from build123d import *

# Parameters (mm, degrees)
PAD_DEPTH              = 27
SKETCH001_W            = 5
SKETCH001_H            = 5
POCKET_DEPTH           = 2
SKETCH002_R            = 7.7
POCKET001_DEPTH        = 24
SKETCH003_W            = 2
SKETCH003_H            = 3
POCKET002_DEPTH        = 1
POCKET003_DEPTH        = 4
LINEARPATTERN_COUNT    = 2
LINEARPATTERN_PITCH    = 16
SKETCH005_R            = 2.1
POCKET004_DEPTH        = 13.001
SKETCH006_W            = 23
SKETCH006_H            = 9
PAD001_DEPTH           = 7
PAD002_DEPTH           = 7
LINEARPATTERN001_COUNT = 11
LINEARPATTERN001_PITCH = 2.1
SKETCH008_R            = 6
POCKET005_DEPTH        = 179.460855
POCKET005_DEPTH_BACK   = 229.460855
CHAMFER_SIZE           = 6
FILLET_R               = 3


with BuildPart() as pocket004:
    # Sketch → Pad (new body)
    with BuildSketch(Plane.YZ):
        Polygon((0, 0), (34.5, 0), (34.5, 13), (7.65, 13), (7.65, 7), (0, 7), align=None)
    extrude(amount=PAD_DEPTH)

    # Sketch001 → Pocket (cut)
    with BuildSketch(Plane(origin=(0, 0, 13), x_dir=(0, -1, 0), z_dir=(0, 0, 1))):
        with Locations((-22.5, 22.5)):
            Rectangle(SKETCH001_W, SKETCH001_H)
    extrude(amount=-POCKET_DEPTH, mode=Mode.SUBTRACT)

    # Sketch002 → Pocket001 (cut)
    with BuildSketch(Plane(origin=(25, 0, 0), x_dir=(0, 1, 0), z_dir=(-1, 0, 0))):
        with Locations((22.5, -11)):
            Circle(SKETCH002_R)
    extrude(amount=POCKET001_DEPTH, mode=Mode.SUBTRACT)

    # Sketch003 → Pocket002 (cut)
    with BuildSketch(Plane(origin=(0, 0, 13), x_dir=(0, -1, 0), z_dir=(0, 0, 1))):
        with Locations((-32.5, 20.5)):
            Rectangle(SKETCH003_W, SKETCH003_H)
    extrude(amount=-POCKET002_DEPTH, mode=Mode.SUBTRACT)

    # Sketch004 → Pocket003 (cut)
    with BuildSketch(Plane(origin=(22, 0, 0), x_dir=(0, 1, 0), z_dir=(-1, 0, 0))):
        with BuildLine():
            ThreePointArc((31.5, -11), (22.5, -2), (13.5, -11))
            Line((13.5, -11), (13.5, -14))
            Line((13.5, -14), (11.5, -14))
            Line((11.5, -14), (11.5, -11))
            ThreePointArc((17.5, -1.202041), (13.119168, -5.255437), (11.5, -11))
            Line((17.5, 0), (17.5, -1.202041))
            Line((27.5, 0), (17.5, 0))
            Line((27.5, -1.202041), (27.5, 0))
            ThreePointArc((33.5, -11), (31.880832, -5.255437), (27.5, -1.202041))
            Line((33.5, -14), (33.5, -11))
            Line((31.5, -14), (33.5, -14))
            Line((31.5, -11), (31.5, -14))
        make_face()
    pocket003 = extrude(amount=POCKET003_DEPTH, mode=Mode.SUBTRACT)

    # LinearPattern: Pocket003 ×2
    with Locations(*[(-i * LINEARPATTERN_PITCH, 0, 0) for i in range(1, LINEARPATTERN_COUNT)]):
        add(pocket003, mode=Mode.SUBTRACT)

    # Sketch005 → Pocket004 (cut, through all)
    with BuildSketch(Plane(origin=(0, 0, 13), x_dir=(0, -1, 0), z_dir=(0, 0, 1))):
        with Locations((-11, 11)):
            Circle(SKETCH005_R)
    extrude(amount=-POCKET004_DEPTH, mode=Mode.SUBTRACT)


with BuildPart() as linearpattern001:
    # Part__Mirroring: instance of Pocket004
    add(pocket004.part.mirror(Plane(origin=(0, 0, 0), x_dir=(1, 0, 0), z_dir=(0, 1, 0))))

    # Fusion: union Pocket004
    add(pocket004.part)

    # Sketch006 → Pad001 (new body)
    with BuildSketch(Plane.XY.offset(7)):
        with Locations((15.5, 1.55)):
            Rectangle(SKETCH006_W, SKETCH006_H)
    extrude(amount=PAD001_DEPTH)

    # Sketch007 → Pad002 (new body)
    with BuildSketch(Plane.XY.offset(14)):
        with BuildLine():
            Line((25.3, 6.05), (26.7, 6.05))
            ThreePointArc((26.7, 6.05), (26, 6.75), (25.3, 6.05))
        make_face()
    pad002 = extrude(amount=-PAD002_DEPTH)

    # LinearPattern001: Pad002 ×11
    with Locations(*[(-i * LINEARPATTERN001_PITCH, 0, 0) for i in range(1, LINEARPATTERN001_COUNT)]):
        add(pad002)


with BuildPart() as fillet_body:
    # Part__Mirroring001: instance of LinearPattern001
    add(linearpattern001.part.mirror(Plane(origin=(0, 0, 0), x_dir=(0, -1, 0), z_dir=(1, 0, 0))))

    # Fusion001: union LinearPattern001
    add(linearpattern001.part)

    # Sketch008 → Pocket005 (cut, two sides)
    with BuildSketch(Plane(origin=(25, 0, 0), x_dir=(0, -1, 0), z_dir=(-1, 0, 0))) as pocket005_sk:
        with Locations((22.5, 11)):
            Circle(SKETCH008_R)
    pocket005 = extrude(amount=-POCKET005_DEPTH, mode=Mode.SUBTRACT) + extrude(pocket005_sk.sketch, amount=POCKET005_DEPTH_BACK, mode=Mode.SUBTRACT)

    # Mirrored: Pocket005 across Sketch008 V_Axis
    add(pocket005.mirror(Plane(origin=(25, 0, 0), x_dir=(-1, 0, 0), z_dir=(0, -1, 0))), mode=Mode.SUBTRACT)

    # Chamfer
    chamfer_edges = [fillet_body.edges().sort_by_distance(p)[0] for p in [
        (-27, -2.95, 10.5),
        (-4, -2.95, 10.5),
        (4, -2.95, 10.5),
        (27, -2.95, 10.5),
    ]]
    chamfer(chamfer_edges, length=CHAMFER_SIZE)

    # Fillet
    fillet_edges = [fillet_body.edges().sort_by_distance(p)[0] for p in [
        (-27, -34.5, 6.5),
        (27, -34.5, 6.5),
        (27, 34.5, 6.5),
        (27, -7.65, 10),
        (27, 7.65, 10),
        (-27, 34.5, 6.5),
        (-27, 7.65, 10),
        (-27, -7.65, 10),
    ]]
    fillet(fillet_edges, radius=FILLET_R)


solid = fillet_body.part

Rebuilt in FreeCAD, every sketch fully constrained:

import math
import FreeCAD as App
import Part
import Sketcher
from FreeCAD import Vector
Q = App.Units.Quantity


def edges_at(feature, points):
    """Names of the edges that pass closest to the given points."""
    edges = feature.Shape.Edges
    near = lambda p: min(range(len(edges)), key=lambda i: edges[i].distToShape(Part.Vertex(*p))[0])
    return sorted({f"Edge{near(p) + 1}" for p in points})

doc = App.newDocument("Part")
params = doc.addObject("Spreadsheet::Sheet", "Params")
for row, (alias, value) in enumerate([
    ("sketch1_height", "13 mm"),
    ("sketch1_height2", "6 mm"),
    ("sketch1_width", "34.5 mm"),
    ("sketch1_width2", "26.85 mm"),
    ("pad1_length", "27 mm"),
    ("sketch2_width", "5 mm"),
    ("pocket1_length", "2 mm"),
    ("sketch3_diameter", "15.4 mm"),
    ("pocket2_length", "24 mm"),
    ("sketch4_width", "3 mm"),
    ("sketch4_height", "2 mm"),
    ("pocket3_length", "1 mm"),
    ("sketch5_radius", "9 mm"),
    ("sketch5_width", "2 mm"),
    ("sketch5_width2", "10 mm"),
    ("sketch5_height", "3 mm"),
    ("pocket4_length", "4 mm"),
    ("linearpattern_pitch", "16 mm"),
    ("sketch6_diameter", "4.2 mm"),
    ("sketch7_width", "23 mm"),
    ("sketch7_height", "9 mm"),
    ("pad2_length", "7 mm"),
    ("sketch8_radius", "0.7 mm"),
    ("pad3_length", "7 mm"),
    ("linearpattern2_pitch", "2.1 mm"),
    ("sketch9_diameter", "12 mm"),
    ("chamfer_size", "6 mm"),
    ("fillet_radius", "3 mm"),
], start=1):
    params.set(f"A{row}", alias)
    params.set(f"B{row}", "=" + value)
    params.setAlias(f"B{row}", alias)

body = doc.addObject("PartDesign::Body", "Body")

# Sketch on YZ plane
sketch1 = doc.addObject("Sketcher::SketchObject", "Sketch")
body.addObject(sketch1)
sketch1.AttachmentSupport = (doc.YZ_Plane, [""])
sketch1.MapMode = "FlatFace"
sketch1.addGeometry([
    Part.LineSegment(Vector(0, 0, 0), Vector(34.5, 0, 0)),  # 0
    Part.LineSegment(Vector(34.5, 0, 0), Vector(34.5, 13, 0)),  # 1
    Part.LineSegment(Vector(34.5, 13, 0), Vector(7.65, 13, 0)),  # 2
    Part.LineSegment(Vector(7.65, 13, 0), Vector(7.65, 7, 0)),  # 3
    Part.LineSegment(Vector(7.65, 7, 0), Vector(0, 7, 0)),  # 4
    Part.LineSegment(Vector(0, 7, 0), Vector(0, 0, 0)),  # 5
], False)
sketch1.addConstraint([
    Sketcher.Constraint("Coincident", 0, 2, 1, 1),
    Sketcher.Constraint("Coincident", 1, 2, 2, 1),
    Sketcher.Constraint("Coincident", 2, 2, 3, 1),
    Sketcher.Constraint("Coincident", 3, 2, 4, 1),
    Sketcher.Constraint("Coincident", 4, 2, 5, 1),
    Sketcher.Constraint("Coincident", 5, 2, 0, 1),
    Sketcher.Constraint("Horizontal", 0),
    Sketcher.Constraint("Vertical", 1),
    Sketcher.Constraint("Horizontal", 2),
    Sketcher.Constraint("Vertical", 3),
    Sketcher.Constraint("Horizontal", 4),
    Sketcher.Constraint("Vertical", 5),
    Sketcher.Constraint("Coincident", 5, 2, -1, 1),
    Sketcher.Constraint("DistanceY", 1, 1, 1, 2, Q("13 mm")),
    Sketcher.Constraint("DistanceY", 3, 2, 3, 1, Q("6 mm")),
    Sketcher.Constraint("DistanceX", 0, 1, 0, 2, Q("34.5 mm")),
    Sketcher.Constraint("DistanceX", 2, 2, 2, 1, Q("26.85 mm")),
])
sketch1.setExpression("Constraints[13]", "Params.sketch1_height")
sketch1.setExpression("Constraints[14]", "Params.sketch1_height2")
sketch1.setExpression("Constraints[15]", "Params.sketch1_width")
sketch1.setExpression("Constraints[16]", "Params.sketch1_width2")
pad1 = doc.addObject("PartDesign::Pad", "Pad")
body.addObject(pad1)
pad1.Profile = sketch1
pad1.setExpression("Length", "Params.pad1_length")

# Sketch on XY plane
sketch2 = doc.addObject("Sketcher::SketchObject", "Sketch001")
body.addObject(sketch2)
sketch2.AttachmentSupport = (doc.XY_Plane, [""])
sketch2.MapMode = "FlatFace"
sketch2.AttachmentOffset = App.Placement(Vector(0, 0, 13), App.Rotation())
sketch2.addGeometry([
    Part.LineSegment(Vector(25, 25, 0), Vector(20, 25, 0)),
    Part.LineSegment(Vector(20, 25, 0), Vector(20, 20, 0)),
    Part.LineSegment(Vector(20, 20, 0), Vector(25, 20, 0)),
    Part.LineSegment(Vector(25, 20, 0), Vector(25, 25, 0)),
], False)
sketch2.addConstraint([
    Sketcher.Constraint("Coincident", 0, 2, 1, 1),
    Sketcher.Constraint("Coincident", 1, 2, 2, 1),
    Sketcher.Constraint("Coincident", 2, 2, 3, 1),
    Sketcher.Constraint("Coincident", 3, 2, 0, 1),
    Sketcher.Constraint("Horizontal", 0),
    Sketcher.Constraint("Vertical", 1),
    Sketcher.Constraint("Horizontal", 2),
    Sketcher.Constraint("Vertical", 3),
    Sketcher.Constraint("Equal", 2, 1),
    Sketcher.Constraint("DistanceX", 0, 2, 0, 1, Q("5 mm")),
    Sketcher.Constraint("DistanceX", -1, 1, 0, 2, Q("20 mm")),
    Sketcher.Constraint("DistanceY", -1, 1, 0, 2, Q("25 mm")),
])
sketch2.setExpression("Constraints[9]", "Params.sketch2_width")
pocket1 = doc.addObject("PartDesign::Pocket", "Pocket")
body.addObject(pocket1)
pocket1.Profile = sketch2
pocket1.setExpression("Length", "Params.pocket1_length")

# Sketch on YZ plane
sketch3 = doc.addObject("Sketcher::SketchObject", "Sketch002")
body.addObject(sketch3)
sketch3.AttachmentSupport = (doc.YZ_Plane, [""])
sketch3.MapMode = "FlatFace"
sketch3.AttachmentOffset = App.Placement(Vector(0, 0, 25), App.Rotation())
sketch3.addGeometry(Part.Circle(Vector(22.5, 11, 0), Vector(0, 0, 1), 7.7), False)
sketch3.addConstraint([
    Sketcher.Constraint("Diameter", 0, Q("15.4 mm")),
    Sketcher.Constraint("DistanceY", -1, 1, 0, 3, Q("11 mm")),
    Sketcher.Constraint("DistanceX", -1, 1, 0, 3, Q("22.5 mm")),
])
sketch3.setExpression("Constraints[0]", "Params.sketch3_diameter")
pocket2 = doc.addObject("PartDesign::Pocket", "Pocket001")
body.addObject(pocket2)
pocket2.Profile = sketch3
pocket2.setExpression("Length", "Params.pocket2_length")

# Sketch on XY plane
sketch4 = doc.addObject("Sketcher::SketchObject", "Sketch003")
body.addObject(sketch4)
sketch4.AttachmentSupport = (doc.XY_Plane, [""])
sketch4.MapMode = "FlatFace"
sketch4.AttachmentOffset = App.Placement(Vector(0, 0, 13), App.Rotation())
sketch4.addGeometry([
    Part.LineSegment(Vector(22, 33.5, 0), Vector(19, 33.5, 0)),
    Part.LineSegment(Vector(19, 33.5, 0), Vector(19, 31.5, 0)),
    Part.LineSegment(Vector(19, 31.5, 0), Vector(22, 31.5, 0)),
    Part.LineSegment(Vector(22, 31.5, 0), Vector(22, 33.5, 0)),
], False)
sketch4.addConstraint([
    Sketcher.Constraint("Coincident", 0, 2, 1, 1),
    Sketcher.Constraint("Coincident", 1, 2, 2, 1),
    Sketcher.Constraint("Coincident", 2, 2, 3, 1),
    Sketcher.Constraint("Coincident", 3, 2, 0, 1),
    Sketcher.Constraint("Horizontal", 0),
    Sketcher.Constraint("Vertical", 1),
    Sketcher.Constraint("Horizontal", 2),
    Sketcher.Constraint("Vertical", 3),
    Sketcher.Constraint("DistanceX", 0, 2, 0, 1, Q("3 mm")),
    Sketcher.Constraint("DistanceY", 1, 2, 1, 1, Q("2 mm")),
    Sketcher.Constraint("DistanceX", -1, 1, 0, 2, Q("19 mm")),
    Sketcher.Constraint("DistanceY", -1, 1, 0, 2, Q("33.5 mm")),
])
sketch4.setExpression("Constraints[8]", "Params.sketch4_width")
sketch4.setExpression("Constraints[9]", "Params.sketch4_height")
pocket3 = doc.addObject("PartDesign::Pocket", "Pocket002")
body.addObject(pocket3)
pocket3.Profile = sketch4
pocket3.setExpression("Length", "Params.pocket3_length")

# Sketch on YZ plane
sketch5 = doc.addObject("Sketcher::SketchObject", "Sketch004")
body.addObject(sketch5)
sketch5.AttachmentSupport = (doc.YZ_Plane, [""])
sketch5.MapMode = "FlatFace"
sketch5.AttachmentOffset = App.Placement(Vector(0, 0, 22), App.Rotation())
sketch5.addGeometry([
    Part.ArcOfCircle(Part.Circle(Vector(22.5, 11, 0), Vector(0, 0, 1), 9), math.radians(180), math.radians(360)),  # 0
    Part.LineSegment(Vector(31.5, 11, 0), Vector(31.5, 14, 0)),  # 1
    Part.LineSegment(Vector(31.5, 14, 0), Vector(33.5, 14, 0)),  # 2
    Part.LineSegment(Vector(33.5, 14, 0), Vector(33.5, 11, 0)),  # 3
    Part.ArcOfCircle(Part.Circle(Vector(22.500003, 10.999998, 0), Vector(0, 0, 1), 10.999997), math.radians(-62.964319), math.radians(0.000011)),  # 4
    Part.LineSegment(Vector(27.5, 1.202041, 0), Vector(27.5, 0, 0)),  # 5
    Part.LineSegment(Vector(27.5, 0, 0), Vector(17.5, 0, 0)),  # 6
    Part.LineSegment(Vector(17.5, 0, 0), Vector(17.5, 1.202041, 0)),  # 7
    Part.ArcOfCircle(Part.Circle(Vector(22.499997, 10.999998, 0), Vector(0, 0, 1), 10.999997), math.radians(179.999989), math.radians(242.964319)),  # 8
    Part.LineSegment(Vector(11.5, 11, 0), Vector(11.5, 14, 0)),  # 9
    Part.LineSegment(Vector(11.5, 14, 0), Vector(13.5, 14, 0)),  # 10
    Part.LineSegment(Vector(13.5, 14, 0), Vector(13.5, 11, 0)),  # 11
], False)
sketch5.addConstraint([
    Sketcher.Constraint("Tangent", 0, 2, 1, 1),
    Sketcher.Constraint("Coincident", 1, 2, 2, 1),
    Sketcher.Constraint("Coincident", 2, 2, 3, 1),
    Sketcher.Constraint("Tangent", 3, 2, 4, 2),
    Sketcher.Constraint("Coincident", 4, 1, 5, 1),
    Sketcher.Constraint("Coincident", 5, 2, 6, 1),
    Sketcher.Constraint("Coincident", 6, 2, 7, 1),
    Sketcher.Constraint("Coincident", 7, 2, 8, 2),
    Sketcher.Constraint("Tangent", 8, 1, 9, 1),
    Sketcher.Constraint("Coincident", 9, 2, 10, 1),
    Sketcher.Constraint("Coincident", 10, 2, 11, 1),
    Sketcher.Constraint("Tangent", 11, 2, 0, 1),
    Sketcher.Constraint("Vertical", 1),
    Sketcher.Constraint("Horizontal", 2),
    Sketcher.Constraint("Vertical", 3),
    Sketcher.Constraint("Vertical", 5),
    Sketcher.Constraint("Horizontal", 6),
    Sketcher.Constraint("Vertical", 7),
    Sketcher.Constraint("Vertical", 9),
    Sketcher.Constraint("Horizontal", 10),
    Sketcher.Constraint("Vertical", 11),
    Sketcher.Constraint("Coincident", 4, 3, 0, 3),
    Sketcher.Constraint("Coincident", 8, 3, 0, 3),
    Sketcher.Constraint("Equal", 4, 8),
    Sketcher.Constraint("PointOnObject", 5, 2, -1),
    Sketcher.Constraint("Horizontal", 4, 1, 7, 2),
    Sketcher.Constraint("Horizontal", 2, 2, 9, 2),
    Sketcher.Constraint("Radius", 0, Q("9 mm")),
    Sketcher.Constraint("DistanceX", 2, 1, 2, 2, Q("2 mm")),
    Sketcher.Constraint("DistanceX", 6, 2, 6, 1, Q("10 mm")),
    Sketcher.Constraint("DistanceY", 1, 1, 1, 2, Q("3 mm")),
    Sketcher.Constraint("DistanceY", -1, 1, 0, 3, Q("11 mm")),
    Sketcher.Constraint("DistanceX", -1, 1, 0, 3, Q("22.5 mm")),
])
sketch5.setExpression("Constraints[27]", "Params.sketch5_radius")
sketch5.setExpression("Constraints[28]", "Params.sketch5_width")
sketch5.setExpression("Constraints[29]", "Params.sketch5_width2")
sketch5.setExpression("Constraints[30]", "Params.sketch5_height")
pocket4 = doc.addObject("PartDesign::Pocket", "Pocket003")
body.addObject(pocket4)
pocket4.Profile = sketch5
pocket4.setExpression("Length", "Params.pocket4_length")
doc.recompute()

linearpattern = doc.addObject("PartDesign::LinearPattern", "LinearPattern")
body.addObject(linearpattern)
linearpattern.Originals = [pocket4]
linearpattern.Direction = (doc.X_Axis, [""])
linearpattern.Mode = "offset"
linearpattern.setExpression("Offset", "Params.linearpattern_pitch")
linearpattern.Occurrences = 2
linearpattern.Reversed = True
body.Tip = linearpattern

# Sketch on XY plane
sketch6 = doc.addObject("Sketcher::SketchObject", "Sketch005")
body.addObject(sketch6)
sketch6.AttachmentSupport = (doc.XY_Plane, [""])
sketch6.MapMode = "FlatFace"
sketch6.AttachmentOffset = App.Placement(Vector(0, 0, 13), App.Rotation())
sketch6.addGeometry(Part.Circle(Vector(11, 11, 0), Vector(0, 0, 1), 2.1), False)
sketch6.addConstraint([
    Sketcher.Constraint("Diameter", 0, Q("4.2 mm")),
    Sketcher.Constraint("DistanceX", -1, 1, 0, 3, Q("11 mm")),
    Sketcher.Constraint("DistanceY", -1, 1, 0, 3, Q("11 mm")),
])
sketch6.setExpression("Constraints[0]", "Params.sketch6_diameter")
pocket5 = doc.addObject("PartDesign::Pocket", "Pocket004")
body.addObject(pocket5)
pocket5.Profile = sketch6
pocket5.Type = "ThroughAll"
body2 = doc.addObject("PartDesign::Body", "Body001")
doc.recompute()

mirroring = doc.addObject("Part::Mirroring", "Mirroring")
mirroring.Source = body
mirroring.Base = Vector(0, 0, 0)
mirroring.Normal = Vector(0, 1, 0)
body2.BaseFeature = mirroring
doc.recompute()

boolean = doc.addObject("PartDesign::Boolean", "Boolean")
body2.addObject(boolean)
boolean.Type = "Fuse"
boolean.addObjects([body])

# Sketch on XY plane
sketch7 = doc.addObject("Sketcher::SketchObject", "Sketch006")
body2.addObject(sketch7)
sketch7.AttachmentSupport = (doc.getObject("XY_Plane001"), [""])
sketch7.MapMode = "FlatFace"
sketch7.AttachmentOffset = App.Placement(Vector(0, 0, 7), App.Rotation())
sketch7.addGeometry([
    Part.LineSegment(Vector(4, 6.05, 0), Vector(4, -2.95, 0)),
    Part.LineSegment(Vector(4, -2.95, 0), Vector(27, -2.95, 0)),
    Part.LineSegment(Vector(27, -2.95, 0), Vector(27, 6.05, 0)),
    Part.LineSegment(Vector(27, 6.05, 0), Vector(4, 6.05, 0)),
], False)
sketch7.addConstraint([
    Sketcher.Constraint("Coincident", 0, 2, 1, 1),
    Sketcher.Constraint("Coincident", 1, 2, 2, 1),
    Sketcher.Constraint("Coincident", 2, 2, 3, 1),
    Sketcher.Constraint("Coincident", 3, 2, 0, 1),
    Sketcher.Constraint("Vertical", 0),
    Sketcher.Constraint("Horizontal", 1),
    Sketcher.Constraint("Vertical", 2),
    Sketcher.Constraint("Horizontal", 3),
    Sketcher.Constraint("DistanceX", 1, 1, 1, 2, Q("23 mm")),
    Sketcher.Constraint("DistanceY", 0, 2, 0, 1, Q("9 mm")),
    Sketcher.Constraint("DistanceX", -1, 1, 0, 2, Q("4 mm")),
    Sketcher.Constraint("DistanceY", 0, 2, -1, 1, Q("2.95 mm")),
])
sketch7.setExpression("Constraints[8]", "Params.sketch7_width")
sketch7.setExpression("Constraints[9]", "Params.sketch7_height")
pad2 = doc.addObject("PartDesign::Pad", "Pad001")
body2.addObject(pad2)
pad2.Profile = sketch7
pad2.setExpression("Length", "Params.pad2_length")

# Sketch on XY plane
sketch8 = doc.addObject("Sketcher::SketchObject", "Sketch007")
body2.addObject(sketch8)
sketch8.AttachmentSupport = (doc.getObject("XY_Plane001"), [""])
sketch8.MapMode = "FlatFace"
sketch8.AttachmentOffset = App.Placement(Vector(0, 0, 14), App.Rotation())
sketch8.addGeometry([
    Part.LineSegment(Vector(25.3, 6.05, 0), Vector(26.7, 6.05, 0)),
    Part.ArcOfCircle(Part.Circle(Vector(26, 6.05, 0), Vector(0, 0, 1), 0.7), math.radians(0), math.radians(180)),
], False)
sketch8.addConstraint([
    Sketcher.Constraint("Coincident", 0, 1, 1, 2),
    Sketcher.Constraint("Coincident", 1, 1, 0, 2),
    Sketcher.Constraint("Horizontal", 0),
    Sketcher.Constraint("Horizontal", 1, 3, 0, 1),
    Sketcher.Constraint("Radius", 1, Q("0.7 mm")),
    Sketcher.Constraint("DistanceX", -1, 1, 1, 3, Q("26 mm")),
    Sketcher.Constraint("DistanceY", -1, 1, 1, 3, Q("6.05 mm")),
])
sketch8.setExpression("Constraints[4]", "Params.sketch8_radius")
pad3 = doc.addObject("PartDesign::Pad", "Pad002")
body2.addObject(pad3)
pad3.Profile = sketch8
pad3.setExpression("Length", "Params.pad3_length")
pad3.Reversed = True
doc.recompute()

linearpattern2 = doc.addObject("PartDesign::LinearPattern", "LinearPattern001")
body2.addObject(linearpattern2)
linearpattern2.Originals = [pad3]
linearpattern2.Direction = (doc.getObject("X_Axis001"), [""])
linearpattern2.Mode = "offset"
linearpattern2.setExpression("Offset", "Params.linearpattern2_pitch")
linearpattern2.Occurrences = 11
linearpattern2.Reversed = True
body2.Tip = linearpattern2
body3 = doc.addObject("PartDesign::Body", "Body002")
doc.recompute()

mirroring2 = doc.addObject("Part::Mirroring", "Mirroring001")
mirroring2.Source = body2
mirroring2.Base = Vector(0, 0, 0)
mirroring2.Normal = Vector(1, 0, 0)
body3.BaseFeature = mirroring2
doc.recompute()

boolean2 = doc.addObject("PartDesign::Boolean", "Boolean001")
body3.addObject(boolean2)
boolean2.Type = "Fuse"
boolean2.addObjects([body2])

# Sketch on YZ plane
sketch9 = doc.addObject("Sketcher::SketchObject", "Sketch008")
body3.addObject(sketch9)
sketch9.AttachmentSupport = (doc.getObject("YZ_Plane002"), [""])
sketch9.MapMode = "FlatFace"
sketch9.AttachmentOffset = App.Placement(Vector(0, 0, 25), App.Rotation())
sketch9.addGeometry(Part.Circle(Vector(-22.5, 11, 0), Vector(0, 0, 1), 6), False)
sketch9.addConstraint([
    Sketcher.Constraint("Diameter", 0, Q("12 mm")),
    Sketcher.Constraint("DistanceY", -1, 1, 0, 3, Q("11 mm")),
    Sketcher.Constraint("DistanceX", 0, 3, -1, 1, Q("22.5 mm")),
])
sketch9.setExpression("Constraints[0]", "Params.sketch9_diameter")
pocket6 = doc.addObject("PartDesign::Pocket", "Pocket005")
body3.addObject(pocket6)
pocket6.Profile = sketch9
pocket6.Type = "ThroughAll"
pocket6.Midplane = True
doc.recompute()

mirrored = doc.addObject("PartDesign::Mirrored", "Mirrored")
body3.addObject(mirrored)
mirrored.Originals = [pocket6]
mirrored.MirrorPlane = (doc.getObject("XZ_Plane002"), [""])
body3.Tip = mirrored
doc.recompute()

chamfer = doc.addObject("PartDesign::Chamfer", "Chamfer")
body3.addObject(chamfer)
chamfer.Base = (mirrored, edges_at(mirrored, [
    (-27, -2.95, 10.5),
    (-4, -2.95, 10.5),
    (4, -2.95, 10.5),
    (27, -2.95, 10.5),
]))
chamfer.setExpression("Size", "Params.chamfer_size")
doc.recompute()

fillet = doc.addObject("PartDesign::Fillet", "Fillet")
body3.addObject(fillet)
fillet.Base = (chamfer, edges_at(chamfer, [
    (-27, -34.5, 6.5),
    (27, -34.5, 6.5),
    (27, 34.5, 6.5),
    (27, -7.65, 10),
    (27, 7.65, 10),
    (-27, 34.5, 6.5),
    (-27, 7.65, 10),
    (-27, -7.65, 10),
]))
fillet.setExpression("Radius", "Params.fillet_radius")
mirroring.Visibility = False
mirroring2.Visibility = False

doc.recompute()
